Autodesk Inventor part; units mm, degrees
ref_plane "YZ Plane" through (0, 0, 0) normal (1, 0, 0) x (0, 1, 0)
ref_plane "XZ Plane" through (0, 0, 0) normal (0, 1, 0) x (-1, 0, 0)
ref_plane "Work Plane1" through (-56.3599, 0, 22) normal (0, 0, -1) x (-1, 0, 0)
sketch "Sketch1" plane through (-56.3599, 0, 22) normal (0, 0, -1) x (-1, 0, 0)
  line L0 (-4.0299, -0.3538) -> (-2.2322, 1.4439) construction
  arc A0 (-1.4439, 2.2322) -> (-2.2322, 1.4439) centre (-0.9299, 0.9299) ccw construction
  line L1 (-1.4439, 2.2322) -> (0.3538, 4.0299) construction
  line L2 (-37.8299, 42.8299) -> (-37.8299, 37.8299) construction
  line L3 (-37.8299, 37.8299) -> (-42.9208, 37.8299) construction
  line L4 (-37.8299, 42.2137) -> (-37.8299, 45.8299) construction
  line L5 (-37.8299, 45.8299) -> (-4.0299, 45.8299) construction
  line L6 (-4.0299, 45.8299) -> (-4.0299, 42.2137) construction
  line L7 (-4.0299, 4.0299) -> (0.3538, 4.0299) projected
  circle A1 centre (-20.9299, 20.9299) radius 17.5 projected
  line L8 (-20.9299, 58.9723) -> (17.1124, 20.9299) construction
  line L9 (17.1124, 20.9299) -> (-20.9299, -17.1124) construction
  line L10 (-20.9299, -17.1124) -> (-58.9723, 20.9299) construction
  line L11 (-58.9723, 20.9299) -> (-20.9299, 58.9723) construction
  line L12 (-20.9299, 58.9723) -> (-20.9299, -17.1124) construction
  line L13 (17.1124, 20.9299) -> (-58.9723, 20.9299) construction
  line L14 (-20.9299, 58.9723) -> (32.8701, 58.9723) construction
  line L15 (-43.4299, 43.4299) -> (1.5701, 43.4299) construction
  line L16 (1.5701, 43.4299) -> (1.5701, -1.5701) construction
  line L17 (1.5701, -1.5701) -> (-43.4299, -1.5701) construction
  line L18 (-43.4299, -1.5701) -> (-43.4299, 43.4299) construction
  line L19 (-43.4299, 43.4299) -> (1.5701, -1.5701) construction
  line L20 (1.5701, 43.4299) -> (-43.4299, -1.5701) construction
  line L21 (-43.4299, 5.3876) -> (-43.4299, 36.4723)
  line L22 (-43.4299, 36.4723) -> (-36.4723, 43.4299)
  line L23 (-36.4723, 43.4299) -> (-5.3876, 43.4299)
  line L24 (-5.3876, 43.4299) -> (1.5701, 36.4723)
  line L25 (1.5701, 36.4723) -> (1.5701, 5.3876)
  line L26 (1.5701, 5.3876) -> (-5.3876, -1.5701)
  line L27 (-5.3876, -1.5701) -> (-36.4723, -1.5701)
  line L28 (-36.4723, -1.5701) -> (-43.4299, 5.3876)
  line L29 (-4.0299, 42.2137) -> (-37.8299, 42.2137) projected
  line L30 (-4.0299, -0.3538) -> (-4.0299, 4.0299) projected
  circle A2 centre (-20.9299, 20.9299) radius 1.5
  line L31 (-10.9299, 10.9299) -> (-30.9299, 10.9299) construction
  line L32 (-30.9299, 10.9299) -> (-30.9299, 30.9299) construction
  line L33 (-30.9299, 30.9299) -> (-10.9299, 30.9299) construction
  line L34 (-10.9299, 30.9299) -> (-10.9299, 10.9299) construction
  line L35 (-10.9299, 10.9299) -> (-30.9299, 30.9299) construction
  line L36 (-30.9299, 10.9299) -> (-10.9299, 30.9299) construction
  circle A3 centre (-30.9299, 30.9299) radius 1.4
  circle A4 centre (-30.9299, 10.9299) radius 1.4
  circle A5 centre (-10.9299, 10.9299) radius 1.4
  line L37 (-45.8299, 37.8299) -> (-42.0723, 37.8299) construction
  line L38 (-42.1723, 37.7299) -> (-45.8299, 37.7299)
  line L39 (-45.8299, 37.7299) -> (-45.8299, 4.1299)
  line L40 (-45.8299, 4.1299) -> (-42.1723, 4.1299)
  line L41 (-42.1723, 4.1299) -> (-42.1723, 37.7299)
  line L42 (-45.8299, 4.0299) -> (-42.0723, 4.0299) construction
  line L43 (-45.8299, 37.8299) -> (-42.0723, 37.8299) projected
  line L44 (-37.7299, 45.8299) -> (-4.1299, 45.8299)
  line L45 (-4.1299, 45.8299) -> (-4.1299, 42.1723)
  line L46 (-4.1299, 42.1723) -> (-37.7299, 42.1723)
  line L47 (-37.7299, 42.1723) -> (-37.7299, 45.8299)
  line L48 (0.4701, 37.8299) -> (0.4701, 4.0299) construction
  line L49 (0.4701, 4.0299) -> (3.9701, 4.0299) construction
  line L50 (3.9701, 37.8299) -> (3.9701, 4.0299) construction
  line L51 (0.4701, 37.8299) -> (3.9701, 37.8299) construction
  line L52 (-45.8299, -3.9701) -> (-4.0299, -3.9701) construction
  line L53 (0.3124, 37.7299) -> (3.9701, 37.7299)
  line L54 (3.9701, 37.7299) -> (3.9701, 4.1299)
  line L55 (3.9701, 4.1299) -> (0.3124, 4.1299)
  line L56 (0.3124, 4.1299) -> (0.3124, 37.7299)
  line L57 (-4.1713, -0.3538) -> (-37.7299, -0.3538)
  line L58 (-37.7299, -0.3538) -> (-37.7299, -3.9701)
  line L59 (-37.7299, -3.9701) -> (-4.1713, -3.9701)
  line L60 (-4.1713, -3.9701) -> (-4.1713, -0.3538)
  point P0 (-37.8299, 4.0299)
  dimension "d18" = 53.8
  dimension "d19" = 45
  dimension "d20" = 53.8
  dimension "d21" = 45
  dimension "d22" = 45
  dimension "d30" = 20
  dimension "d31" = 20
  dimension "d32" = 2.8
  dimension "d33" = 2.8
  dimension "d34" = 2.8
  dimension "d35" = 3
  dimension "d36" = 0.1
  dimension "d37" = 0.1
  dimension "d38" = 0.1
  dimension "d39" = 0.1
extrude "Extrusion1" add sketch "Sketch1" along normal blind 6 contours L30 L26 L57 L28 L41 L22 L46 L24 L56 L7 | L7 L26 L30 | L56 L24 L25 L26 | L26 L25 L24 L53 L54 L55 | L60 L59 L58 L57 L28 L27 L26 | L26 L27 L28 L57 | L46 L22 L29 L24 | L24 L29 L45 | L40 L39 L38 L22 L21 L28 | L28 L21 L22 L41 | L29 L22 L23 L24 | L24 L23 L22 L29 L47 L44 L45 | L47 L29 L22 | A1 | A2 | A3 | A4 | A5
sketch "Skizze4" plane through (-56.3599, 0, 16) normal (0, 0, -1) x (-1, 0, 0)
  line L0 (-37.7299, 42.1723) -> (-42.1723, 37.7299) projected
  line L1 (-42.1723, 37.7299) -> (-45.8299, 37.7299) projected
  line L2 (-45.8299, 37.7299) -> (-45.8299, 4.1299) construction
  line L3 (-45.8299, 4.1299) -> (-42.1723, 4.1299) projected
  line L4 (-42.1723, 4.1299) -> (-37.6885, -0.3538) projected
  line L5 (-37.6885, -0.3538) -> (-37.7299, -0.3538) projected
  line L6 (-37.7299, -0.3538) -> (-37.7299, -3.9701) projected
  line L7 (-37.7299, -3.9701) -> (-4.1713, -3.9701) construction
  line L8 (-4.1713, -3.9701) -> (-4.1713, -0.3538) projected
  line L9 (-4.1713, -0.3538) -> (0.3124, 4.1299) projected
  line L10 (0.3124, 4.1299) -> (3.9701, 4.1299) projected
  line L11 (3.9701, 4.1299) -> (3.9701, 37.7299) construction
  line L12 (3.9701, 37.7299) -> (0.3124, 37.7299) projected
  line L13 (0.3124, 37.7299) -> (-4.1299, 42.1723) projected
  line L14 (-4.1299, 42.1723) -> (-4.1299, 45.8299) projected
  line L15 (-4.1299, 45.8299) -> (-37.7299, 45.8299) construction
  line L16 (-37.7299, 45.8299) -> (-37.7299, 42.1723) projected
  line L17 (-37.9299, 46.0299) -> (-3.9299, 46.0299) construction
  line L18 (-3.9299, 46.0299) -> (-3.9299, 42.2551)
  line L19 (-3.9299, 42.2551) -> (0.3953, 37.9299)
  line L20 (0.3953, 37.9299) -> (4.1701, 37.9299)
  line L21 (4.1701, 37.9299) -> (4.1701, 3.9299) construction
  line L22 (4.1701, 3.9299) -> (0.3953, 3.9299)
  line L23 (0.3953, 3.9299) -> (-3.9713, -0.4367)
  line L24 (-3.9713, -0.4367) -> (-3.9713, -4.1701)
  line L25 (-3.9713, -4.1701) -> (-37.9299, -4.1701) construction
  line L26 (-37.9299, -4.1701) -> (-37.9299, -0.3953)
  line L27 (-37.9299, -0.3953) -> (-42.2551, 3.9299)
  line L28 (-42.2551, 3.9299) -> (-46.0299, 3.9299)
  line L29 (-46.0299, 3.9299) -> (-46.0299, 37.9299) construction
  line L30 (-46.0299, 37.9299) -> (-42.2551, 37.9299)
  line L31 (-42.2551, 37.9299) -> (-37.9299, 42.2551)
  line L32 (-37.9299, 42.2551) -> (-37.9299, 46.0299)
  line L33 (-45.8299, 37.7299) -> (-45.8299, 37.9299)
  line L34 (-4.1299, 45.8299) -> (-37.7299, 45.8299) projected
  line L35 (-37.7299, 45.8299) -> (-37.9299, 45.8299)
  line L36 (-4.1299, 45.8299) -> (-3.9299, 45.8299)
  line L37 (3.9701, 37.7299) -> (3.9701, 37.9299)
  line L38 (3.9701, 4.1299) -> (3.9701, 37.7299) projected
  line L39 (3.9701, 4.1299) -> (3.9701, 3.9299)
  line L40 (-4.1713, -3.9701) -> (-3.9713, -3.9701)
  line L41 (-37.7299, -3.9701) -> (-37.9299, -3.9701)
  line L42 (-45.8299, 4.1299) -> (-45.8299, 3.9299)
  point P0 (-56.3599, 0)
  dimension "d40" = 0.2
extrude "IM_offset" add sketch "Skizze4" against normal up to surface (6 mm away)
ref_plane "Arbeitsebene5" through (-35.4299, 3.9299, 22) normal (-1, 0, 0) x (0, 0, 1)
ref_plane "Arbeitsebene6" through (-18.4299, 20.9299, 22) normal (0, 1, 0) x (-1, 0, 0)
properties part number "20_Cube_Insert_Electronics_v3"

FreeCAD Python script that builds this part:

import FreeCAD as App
import Part
import Sketcher
Q = App.Units.Quantity

doc = App.newDocument("Part")
params = doc.addObject("Spreadsheet::Sheet", "Params")
for row, (alias, value) in enumerate([
    ("sketch1_width", "33.6 mm"),
    ("pad1_length", "6 mm"),
    ("sketch2_width", "0.2 mm"),
    ("pad2_length", "6 mm"),
], start=1):
    params.set(f"A{row}", alias)
    params.set(f"B{row}", "=" + value)
    params.setAlias(f"B{row}", alias)

body = doc.addObject("PartDesign::Body", "Body")

sketch1 = body.newObject("Sketcher::SketchObject", "Sketch")
sketch1.AttachmentSupport = (doc.getObject("XY_Plane"), [""])
sketch1.MapMode = "FlatFace"
sketch1.AttachmentOffset = App.Placement(App.Vector(0, 0, 22), App.Rotation())
sketch1.addGeometry(Part.LineSegment(App.Vector(-52.1886, -0.3538, 0), App.Vector(-56.6723, 4.1299, 0)), False)
sketch1.addGeometry(Part.LineSegment(App.Vector(-56.6723, 4.1299, 0), App.Vector(-60.33, 4.1299, 0)), False)
sketch1.addGeometry(Part.LineSegment(App.Vector(-60.33, 4.1299, 0), App.Vector(-60.33, 37.7299, 0)), False)
sketch1.addGeometry(Part.LineSegment(App.Vector(-60.33, 37.7299, 0), App.Vector(-56.6723, 37.7299, 0)), False)
sketch1.addGeometry(Part.LineSegment(App.Vector(-56.672341, 37.729941, 0), App.Vector(-52.229959, 42.172259, 0)), False)
sketch1.addGeometry(Part.LineSegment(App.Vector(-52.23, 42.1723, 0), App.Vector(-52.23, 45.8299, 0)), False)
sketch1.addGeometry(Part.LineSegment(App.Vector(-52.23, 45.8299, 0), App.Vector(-18.63, 45.8299, 0)), False)
sketch1.addGeometry(Part.LineSegment(App.Vector(-18.63, 45.8299, 0), App.Vector(-18.63, 42.1723, 0)), False)
sketch1.addGeometry(Part.LineSegment(App.Vector(-18.63, 42.1723, 0), App.Vector(-14.1876, 37.7299, 0)), False)
sketch1.addGeometry(Part.LineSegment(App.Vector(-14.1876, 37.7299, 0), App.Vector(-10.53, 37.7299, 0)), False)
sketch1.addGeometry(Part.LineSegment(App.Vector(-10.53, 37.7299, 0), App.Vector(-10.53, 4.1299, 0)), False)
sketch1.addGeometry(Part.LineSegment(App.Vector(-10.53, 4.1299, 0), App.Vector(-14.1876, 4.1299, 0)), False)
sketch1.addGeometry(Part.LineSegment(App.Vector(-14.187641, 4.129941, 0), App.Vector(-18.671317, -0.3538, 0)), False)
sketch1.addGeometry(Part.LineSegment(App.Vector(-18.671317, -0.3538, 0), App.Vector(-18.63, -0.3538, 0)), False)
sketch1.addGeometry(Part.LineSegment(App.Vector(-18.63, -0.3538, 0), App.Vector(-18.63, -3.9701, 0)), False)
sketch1.addGeometry(Part.LineSegment(App.Vector(-18.63, -3.9701, 0), App.Vector(-52.1886, -3.9701, 0)), False)
sketch1.addGeometry(Part.LineSegment(App.Vector(-52.1886, -3.9701, 0), App.Vector(-52.1886, -0.3538, 0)), False)
sketch1.addConstraint(Sketcher.Constraint("Coincident", 0, 2, 1, 1))
sketch1.addConstraint(Sketcher.Constraint("Coincident", 1, 2, 2, 1))
sketch1.addConstraint(Sketcher.Constraint("Coincident", 2, 2, 3, 1))
sketch1.addConstraint(Sketcher.Constraint("Coincident", 3, 2, 4, 1))
sketch1.addConstraint(Sketcher.Constraint("Coincident", 4, 2, 5, 1))
sketch1.addConstraint(Sketcher.Constraint("Coincident", 5, 2, 6, 1))
sketch1.addConstraint(Sketcher.Constraint("Coincident", 6, 2, 7, 1))
sketch1.addConstraint(Sketcher.Constraint("Coincident", 7, 2, 8, 1))
sketch1.addConstraint(Sketcher.Constraint("Coincident", 8, 2, 9, 1))
sketch1.addConstraint(Sketcher.Constraint("Coincident", 9, 2, 10, 1))
sketch1.addConstraint(Sketcher.Constraint("Coincident", 10, 2, 11, 1))
sketch1.addConstraint(Sketcher.Constraint("Coincident", 11, 2, 12, 1))
sketch1.addConstraint(Sketcher.Constraint("Coincident", 12, 2, 13, 1))
sketch1.addConstraint(Sketcher.Constraint("Coincident", 13, 2, 14, 1))
sketch1.addConstraint(Sketcher.Constraint("Coincident", 14, 2, 15, 1))
sketch1.addConstraint(Sketcher.Constraint("Coincident", 15, 2, 16, 1))
sketch1.addConstraint(Sketcher.Constraint("Coincident", 16, 2, 0, 1))
sketch1.addConstraint(Sketcher.Constraint("Horizontal", 1))
sketch1.addConstraint(Sketcher.Constraint("Vertical", 2))
sketch1.addConstraint(Sketcher.Constraint("Horizontal", 3))
sketch1.addConstraint(Sketcher.Constraint("Vertical", 5))
sketch1.addConstraint(Sketcher.Constraint("Horizontal", 6))
sketch1.addConstraint(Sketcher.Constraint("Vertical", 7))
sketch1.addConstraint(Sketcher.Constraint("Horizontal", 9))
sketch1.addConstraint(Sketcher.Constraint("Vertical", 10))
sketch1.addConstraint(Sketcher.Constraint("Horizontal", 11))
sketch1.addConstraint(Sketcher.Constraint("Horizontal", 13))
sketch1.addConstraint(Sketcher.Constraint("Vertical", 14))
sketch1.addConstraint(Sketcher.Constraint("Horizontal", 15))
sketch1.addConstraint(Sketcher.Constraint("Vertical", 16))
sketch1.addConstraint(Sketcher.Constraint("Perpendicular", 0, 4))
sketch1.addConstraint(Sketcher.Constraint("Perpendicular", 4, 8))
sketch1.addConstraint(Sketcher.Constraint("Perpendicular", 8, 12))
sketch1.addConstraint(Sketcher.Constraint("Horizontal", 4, 2, 7, 2))
sketch1.addConstraint(Sketcher.Constraint("Horizontal", 3, 2, 8, 2))
sketch1.addConstraint(Sketcher.Constraint("Horizontal", 1, 2, 10, 2))
sketch1.addConstraint(Sketcher.Constraint("Horizontal", 13, 2, 16, 2))
sketch1.addConstraint(Sketcher.Constraint("Vertical", 0, 2, 3, 2))
sketch1.addConstraint(Sketcher.Constraint("Vertical", 8, 2, 11, 2))
sketch1.addConstraint(Sketcher.Constraint("Vertical", 7, 2, 13, 2))
sketch1.addConstraint(Sketcher.Constraint("Equal", 3, 9))
sketch1.addConstraint(Sketcher.Constraint("Equal", 6, 2))
sketch1.addConstraint(Sketcher.Constraint("Equal", 11, 5))
sketch1.addConstraint(Sketcher.Constraint("Equal", 4, 8))
sketch1.addConstraint(Sketcher.Constraint("DistanceX", 6, 1, 6, 2, Q("33.6 mm")))
sketch1.addConstraint(Sketcher.Constraint("DistanceX", 2, 2, 4, 2, Q("8.1 mm")))
sketch1.addConstraint(Sketcher.Constraint("DistanceY", 14, 2, 11, 2, Q("8.1 mm")))
sketch1.addConstraint(Sketcher.Constraint("DistanceY", -1, 1, 0, 2, Q("4.13 mm")))
sketch1.addConstraint(Sketcher.Constraint("DistanceX", 1, 2, -1, 1, Q("60.33 mm")))
sketch1.addConstraint(Sketcher.Constraint("Distance", 0, Q("6.341 mm")))
sketch1.addConstraint(Sketcher.Constraint("DistanceX", 1, 2, 1, 1, Q("3.6577 mm")))
sketch1.setExpression("Constraints[44]", "Params.sketch1_width")
pad1 = body.newObject("PartDesign::Pad", "Pad")
pad1.Profile = sketch1
pad1.setExpression("Length", "Params.pad1_length")
pad1.Reversed = True

sketch2 = body.newObject("Sketcher::SketchObject", "Sketch001")
sketch2.AttachmentSupport = (doc.getObject("XY_Plane"), [""])
sketch2.MapMode = "FlatFace"
sketch2.AttachmentOffset = App.Placement(App.Vector(0, 0, 16), App.Rotation())
sketch2.addGeometry(Part.LineSegment(App.Vector(-60.33, 3.9299, 0), App.Vector(-60.33, 4.1299, 0)), False)
sketch2.addGeometry(Part.LineSegment(App.Vector(-60.33, 4.1299, 0), App.Vector(-56.6723, 4.1299, 0)), False)
sketch2.addGeometry(Part.LineSegment(App.Vector(-56.6723, 4.1299, 0), App.Vector(-52.1886, -0.3538, 0)), False)
sketch2.addGeometry(Part.LineSegment(App.Vector(-52.1886, -0.3538, 0), App.Vector(-52.1886, -3.9701, 0)), False)
sketch2.addGeometry(Part.LineSegment(App.Vector(-52.1886, -3.9701, 0), App.Vector(-52.3886, -3.9701, 0)), False)
sketch2.addGeometry(Part.LineSegment(App.Vector(-52.3886, -3.9701, 0), App.Vector(-52.3886, -0.4367, 0)), False)
sketch2.addGeometry(Part.LineSegment(App.Vector(-52.3886, -0.4367, 0), App.Vector(-56.7552, 3.9299, 0)), False)
sketch2.addGeometry(Part.LineSegment(App.Vector(-56.7552, 3.9299, 0), App.Vector(-60.33, 3.9299, 0)), False)
sketch2.addGeometry(Part.LineSegment(App.Vector(-52.43, 45.8299, 0), App.Vector(-52.23, 45.8299, 0)), False)
sketch2.addGeometry(Part.LineSegment(App.Vector(-52.23, 45.8299, 0), App.Vector(-52.23, 42.1723, 0)), False)
sketch2.addGeometry(Part.LineSegment(App.Vector(-52.23, 42.1723, 0), App.Vector(-56.6723, 37.7299, 0)), False)
sketch2.addGeometry(Part.LineSegment(App.Vector(-56.6723, 37.7299, 0), App.Vector(-60.33, 37.7299, 0)), False)
sketch2.addGeometry(Part.LineSegment(App.Vector(-60.33, 37.7299, 0), App.Vector(-60.33, 37.9299, 0)), False)
sketch2.addGeometry(Part.LineSegment(App.Vector(-60.33, 37.9299, 0), App.Vector(-56.7552, 37.9299, 0)), False)
sketch2.addGeometry(Part.LineSegment(App.Vector(-56.7552, 37.9299, 0), App.Vector(-52.43, 42.2551, 0)), False)
sketch2.addGeometry(Part.LineSegment(App.Vector(-52.43, 42.2551, 0), App.Vector(-52.43, 45.8299, 0)), False)
sketch2.addGeometry(Part.LineSegment(App.Vector(-14.1876, 37.7299, 0), App.Vector(-18.63, 42.1723, 0)), False)
sketch2.addGeometry(Part.LineSegment(App.Vector(-18.63, 42.1723, 0), App.Vector(-18.63, 45.8299, 0)), False)
sketch2.addGeometry(Part.LineSegment(App.Vector(-18.63, 45.8299, 0), App.Vector(-18.43, 45.8299, 0)), False)
sketch2.addGeometry(Part.LineSegment(App.Vector(-18.43, 45.8299, 0), App.Vector(-18.43, 42.2551, 0)), False)
sketch2.addGeometry(Part.LineSegment(App.Vector(-18.43, 42.2551, 0), App.Vector(-14.1048, 37.9299, 0)), False)
sketch2.addGeometry(Part.LineSegment(App.Vector(-14.1048, 37.9299, 0), App.Vector(-10.53, 37.9299, 0)), False)
sketch2.addGeometry(Part.LineSegment(App.Vector(-10.53, 37.9299, 0), App.Vector(-10.53, 37.7299, 0)), False)
sketch2.addGeometry(Part.LineSegment(App.Vector(-10.53, 37.7299, 0), App.Vector(-14.1876, 37.7299, 0)), False)
sketch2.addGeometry(Part.LineSegment(App.Vector(-14.1876, 4.1299, 0), App.Vector(-10.53, 4.1299, 0)), False)
sketch2.addGeometry(Part.LineSegment(App.Vector(-10.53, 4.1299, 0), App.Vector(-10.53, 3.9299, 0)), False)
sketch2.addGeometry(Part.LineSegment(App.Vector(-10.53, 3.9299, 0), App.Vector(-14.1048, 3.9299, 0)), False)
sketch2.addGeometry(Part.LineSegment(App.Vector(-14.1048, 3.9299, 0), App.Vector(-18.43, -0.3953, 0)), False)
sketch2.addGeometry(Part.LineSegment(App.Vector(-18.43, -0.3953, 0), App.Vector(-18.43, -3.9701, 0)), False)
sketch2.addGeometry(Part.LineSegment(App.Vector(-18.43, -3.9701, 0), App.Vector(-18.63, -3.9701, 0)), False)
sketch2.addGeometry(Part.LineSegment(App.Vector(-18.63, -3.9701, 0), App.Vector(-18.63, -0.3538, 0)), False)
sketch2.addGeometry(Part.LineSegment(App.Vector(-18.63, -0.3538, 0), App.Vector(-18.6714, -0.3538, 0)), False)
sketch2.addGeometry(Part.LineSegment(App.Vector(-18.6714, -0.3538, 0), App.Vector(-14.1876, 4.1299, 0)), False)
sketch2.addConstraint(Sketcher.Constraint("Coincident", 0, 2, 1, 1))
sketch2.addConstraint(Sketcher.Constraint("Coincident", 1, 2, 2, 1))
sketch2.addConstraint(Sketcher.Constraint("Coincident", 2, 2, 3, 1))
sketch2.addConstraint(Sketcher.Constraint("Coincident", 3, 2, 4, 1))
sketch2.addConstraint(Sketcher.Constraint("Coincident", 4, 2, 5, 1))
sketch2.addConstraint(Sketcher.Constraint("Coincident", 5, 2, 6, 1))
sketch2.addConstraint(Sketcher.Constraint("Coincident", 6, 2, 7, 1))
sketch2.addConstraint(Sketcher.Constraint("Coincident", 7, 2, 0, 1))
sketch2.addConstraint(Sketcher.Constraint("Coincident", 8, 2, 9, 1))
sketch2.addConstraint(Sketcher.Constraint("Coincident", 9, 2, 10, 1))
sketch2.addConstraint(Sketcher.Constraint("Coincident", 10, 2, 11, 1))
sketch2.addConstraint(Sketcher.Constraint("Coincident", 11, 2, 12, 1))
sketch2.addConstraint(Sketcher.Constraint("Coincident", 12, 2, 13, 1))
sketch2.addConstraint(Sketcher.Constraint("Coincident", 13, 2, 14, 1))
sketch2.addConstraint(Sketcher.Constraint("Coincident", 14, 2, 15, 1))
sketch2.addConstraint(Sketcher.Constraint("Coincident", 15, 2, 8, 1))
sketch2.addConstraint(Sketcher.Constraint("Coincident", 16, 2, 17, 1))
sketch2.addConstraint(Sketcher.Constraint("Coincident", 17, 2, 18, 1))
sketch2.addConstraint(Sketcher.Constraint("Coincident", 18, 2, 19, 1))
sketch2.addConstraint(Sketcher.Constraint("Coincident", 19, 2, 20, 1))
sketch2.addConstraint(Sketcher.Constraint("Coincident", 20, 2, 21, 1))
sketch2.addConstraint(Sketcher.Constraint("Coincident", 21, 2, 22, 1))
sketch2.addConstraint(Sketcher.Constraint("Coincident", 22, 2, 23, 1))
sketch2.addConstraint(Sketcher.Constraint("Coincident", 23, 2, 16, 1))
sketch2.addConstraint(Sketcher.Constraint("Coincident", 24, 2, 25, 1))
sketch2.addConstraint(Sketcher.Constraint("Coincident", 25, 2, 26, 1))
sketch2.addConstraint(Sketcher.Constraint("Coincident", 26, 2, 27, 1))
sketch2.addConstraint(Sketcher.Constraint("Coincident", 27, 2, 28, 1))
sketch2.addConstraint(Sketcher.Constraint("Coincident", 28, 2, 29, 1))
sketch2.addConstraint(Sketcher.Constraint("Coincident", 29, 2, 30, 1))
sketch2.addConstraint(Sketcher.Constraint("Coincident", 30, 2, 31, 1))
sketch2.addConstraint(Sketcher.Constraint("Coincident", 31, 2, 32, 1))
sketch2.addConstraint(Sketcher.Constraint("Coincident", 32, 2, 24, 1))
sketch2.addConstraint(Sketcher.Constraint("Vertical", 0))
sketch2.addConstraint(Sketcher.Constraint("Horizontal", 1))
sketch2.addConstraint(Sketcher.Constraint("Vertical", 3))
sketch2.addConstraint(Sketcher.Constraint("Horizontal", 4))
sketch2.addConstraint(Sketcher.Constraint("Vertical", 5))
sketch2.addConstraint(Sketcher.Constraint("Horizontal", 7))
sketch2.addConstraint(Sketcher.Constraint("Horizontal", 8))
sketch2.addConstraint(Sketcher.Constraint("Vertical", 9))
sketch2.addConstraint(Sketcher.Constraint("Horizontal", 11))
sketch2.addConstraint(Sketcher.Constraint("Vertical", 12))
sketch2.addConstraint(Sketcher.Constraint("Horizontal", 13))
sketch2.addConstraint(Sketcher.Constraint("Vertical", 15))
sketch2.addConstraint(Sketcher.Constraint("Vertical", 17))
sketch2.addConstraint(Sketcher.Constraint("Horizontal", 18))
sketch2.addConstraint(Sketcher.Constraint("Vertical", 19))
sketch2.addConstraint(Sketcher.Constraint("Horizontal", 21))
sketch2.addConstraint(Sketcher.Constraint("Vertical", 22))
sketch2.addConstraint(Sketcher.Constraint("Horizontal", 23))
sketch2.addConstraint(Sketcher.Constraint("Horizontal", 24))
sketch2.addConstraint(Sketcher.Constraint("Vertical", 25))
sketch2.addConstraint(Sketcher.Constraint("Horizontal", 26))
sketch2.addConstraint(Sketcher.Constraint("Vertical", 28))
sketch2.addConstraint(Sketcher.Constraint("Horizontal", 29))
sketch2.addConstraint(Sketcher.Constraint("Vertical", 30))
sketch2.addConstraint(Sketcher.Constraint("Horizontal", 31))
sketch2.addConstraint(Sketcher.Constraint("Parallel", 2, 6))
sketch2.addConstraint(Sketcher.Constraint("Perpendicular", 6, 10))
sketch2.addConstraint(Sketcher.Constraint("Parallel", 10, 14))
sketch2.addConstraint(Sketcher.Constraint("Perpendicular", 14, 16))
sketch2.addConstraint(Sketcher.Constraint("Parallel", 16, 20))
sketch2.addConstraint(Sketcher.Constraint("Perpendicular", 20, 27))
sketch2.addConstraint(Sketcher.Constraint("Parallel", 27, 32))
sketch2.addConstraint(Sketcher.Constraint("Horizontal", 9, 2, 16, 2))
sketch2.addConstraint(Sketcher.Constraint("Horizontal", 15, 2, 17, 2))
sketch2.addConstraint(Sketcher.Constraint("Horizontal", 14, 2, 19, 2))
sketch2.addConstraint(Sketcher.Constraint("Horizontal", 13, 2, 20, 2))
sketch2.addConstraint(Sketcher.Constraint("Horizontal", 11, 2, 22, 2))
sketch2.addConstraint(Sketcher.Constraint("Horizontal", 1, 2, 24, 2))
sketch2.addConstraint(Sketcher.Constraint("Horizontal", 7, 2, 25, 2))
sketch2.addConstraint(Sketcher.Constraint("Horizontal", 4, 2, 28, 2))
sketch2.addConstraint(Sketcher.Constraint("Horizontal", 2, 2, 30, 2))
sketch2.addConstraint(Sketcher.Constraint("Vertical", 1, 2, 10, 2))
sketch2.addConstraint(Sketcher.Constraint("Vertical", 7, 2, 11, 2))
sketch2.addConstraint(Sketcher.Constraint("Vertical", 6, 2, 13, 2))
sketch2.addConstraint(Sketcher.Constraint("Vertical", 22, 2, 24, 2))
sketch2.addConstraint(Sketcher.Constraint("Vertical", 20, 2, 26, 2))
sketch2.addConstraint(Sketcher.Constraint("Vertical", 19, 2, 27, 2))
sketch2.addConstraint(Sketcher.Constraint("Vertical", 17, 2, 29, 2))
sketch2.addConstraint(Sketcher.Constraint("Vertical", 23, 2, 32, 2))
sketch2.addConstraint(Sketcher.Constraint("Equal", 4, 8))
sketch2.addConstraint(Sketcher.Constraint("Equal", 8, 18))
sketch2.addConstraint(Sketcher.Constraint("Equal", 13, 21))
sketch2.addConstraint(Sketcher.Constraint("Equal", 11, 23))
sketch2.addConstraint(Sketcher.Constraint("Equal", 29, 0))
sketch2.addConstraint(Sketcher.Constraint("Equal", 24, 9))
sketch2.addConstraint(Sketcher.Constraint("Equal", 0, 12))
sketch2.addConstraint(Sketcher.Constraint("Equal", 19, 28))
sketch2.addConstraint(Sketcher.Constraint("DistanceX", 4, 2, 4, 1, Q("0.2 mm")))
sketch2.addConstraint(Sketcher.Constraint("DistanceX", 15, 2, 18, 2, Q("34 mm")))
sketch2.addConstraint(Sketcher.Constraint("DistanceY", 25, 2, 21, 2, Q("34 mm")))
sketch2.addConstraint(Sketcher.Constraint("DistanceY", 3, 2, 1, 2, Q("8.1 mm")))
sketch2.addConstraint(Sketcher.Constraint("DistanceX", 0, 2, -1, 1, Q("60.33 mm")))
sketch2.addConstraint(Sketcher.Constraint("DistanceY", -1, 1, 0, 2, Q("4.13 mm")))
sketch2.addConstraint(Sketcher.Constraint("Distance", 2, Q("6.341 mm")))
sketch2.addConstraint(Sketcher.Constraint("DistanceX", 1, 1, 1, 2, Q("3.6577 mm")))
sketch2.addConstraint(Sketcher.Constraint("DistanceX", 7, 2, 7, 1, Q("3.5748 mm")))
sketch2.setExpression("Constraints[90]", "Params.sketch2_width")
pad2 = body.newObject("PartDesign::Pad", "Pad001")
pad2.Profile = sketch2
pad2.setExpression("Length", "Params.pad2_length")

doc.recompute()
